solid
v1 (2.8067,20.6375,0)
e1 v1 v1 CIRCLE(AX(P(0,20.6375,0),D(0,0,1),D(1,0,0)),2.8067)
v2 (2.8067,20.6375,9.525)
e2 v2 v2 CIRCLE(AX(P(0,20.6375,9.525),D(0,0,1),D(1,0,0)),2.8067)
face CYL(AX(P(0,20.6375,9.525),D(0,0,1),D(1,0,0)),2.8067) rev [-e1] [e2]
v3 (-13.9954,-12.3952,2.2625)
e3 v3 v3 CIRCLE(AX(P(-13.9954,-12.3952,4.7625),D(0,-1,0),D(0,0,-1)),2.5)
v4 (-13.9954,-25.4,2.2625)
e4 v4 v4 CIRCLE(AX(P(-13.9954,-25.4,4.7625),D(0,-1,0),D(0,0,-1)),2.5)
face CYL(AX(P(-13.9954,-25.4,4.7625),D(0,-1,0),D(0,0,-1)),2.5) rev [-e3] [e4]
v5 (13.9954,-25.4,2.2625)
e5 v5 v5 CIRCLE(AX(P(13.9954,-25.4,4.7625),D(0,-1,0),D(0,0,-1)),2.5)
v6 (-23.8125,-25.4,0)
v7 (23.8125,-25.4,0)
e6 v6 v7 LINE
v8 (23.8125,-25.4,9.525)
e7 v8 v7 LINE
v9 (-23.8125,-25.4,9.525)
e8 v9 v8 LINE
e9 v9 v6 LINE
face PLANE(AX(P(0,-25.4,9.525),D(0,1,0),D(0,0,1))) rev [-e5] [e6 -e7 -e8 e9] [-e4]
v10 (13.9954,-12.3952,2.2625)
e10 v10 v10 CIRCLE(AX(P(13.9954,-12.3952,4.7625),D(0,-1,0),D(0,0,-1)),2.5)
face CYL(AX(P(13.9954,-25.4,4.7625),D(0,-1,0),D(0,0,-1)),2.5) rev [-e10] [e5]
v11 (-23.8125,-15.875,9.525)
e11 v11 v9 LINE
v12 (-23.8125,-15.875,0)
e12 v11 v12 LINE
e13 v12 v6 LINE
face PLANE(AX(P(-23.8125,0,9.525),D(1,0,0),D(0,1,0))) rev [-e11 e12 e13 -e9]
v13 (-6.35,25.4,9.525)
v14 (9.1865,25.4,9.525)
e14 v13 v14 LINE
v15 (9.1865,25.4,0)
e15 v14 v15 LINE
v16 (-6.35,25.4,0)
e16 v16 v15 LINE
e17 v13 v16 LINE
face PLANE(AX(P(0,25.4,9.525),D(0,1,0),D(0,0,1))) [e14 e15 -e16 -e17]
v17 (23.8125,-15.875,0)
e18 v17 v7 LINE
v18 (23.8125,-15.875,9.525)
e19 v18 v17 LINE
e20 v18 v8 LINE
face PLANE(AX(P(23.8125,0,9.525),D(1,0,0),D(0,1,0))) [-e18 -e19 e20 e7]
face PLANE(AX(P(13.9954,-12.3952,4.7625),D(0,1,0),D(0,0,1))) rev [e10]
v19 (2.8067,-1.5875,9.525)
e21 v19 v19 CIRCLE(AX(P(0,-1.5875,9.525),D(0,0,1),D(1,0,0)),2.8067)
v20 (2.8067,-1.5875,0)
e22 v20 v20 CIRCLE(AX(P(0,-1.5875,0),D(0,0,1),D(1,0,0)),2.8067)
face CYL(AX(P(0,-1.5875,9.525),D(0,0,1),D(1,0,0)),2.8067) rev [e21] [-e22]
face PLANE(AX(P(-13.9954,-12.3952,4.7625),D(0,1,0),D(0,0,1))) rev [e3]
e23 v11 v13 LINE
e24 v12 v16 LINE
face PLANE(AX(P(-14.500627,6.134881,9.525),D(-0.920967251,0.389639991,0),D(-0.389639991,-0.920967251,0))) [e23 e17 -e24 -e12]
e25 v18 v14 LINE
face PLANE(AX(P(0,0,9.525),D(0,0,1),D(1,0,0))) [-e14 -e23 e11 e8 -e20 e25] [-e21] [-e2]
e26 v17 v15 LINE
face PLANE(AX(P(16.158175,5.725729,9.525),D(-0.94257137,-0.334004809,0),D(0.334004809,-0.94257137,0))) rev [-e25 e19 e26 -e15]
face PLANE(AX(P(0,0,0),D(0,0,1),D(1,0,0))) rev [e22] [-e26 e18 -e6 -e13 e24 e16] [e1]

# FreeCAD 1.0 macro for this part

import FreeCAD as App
import Part
import Sketcher

V = App.Vector
Q = App.Units.Quantity

doc = App.newDocument("Part")
body = doc.addObject("PartDesign::Body", "Body")

# Sketch on XY plane
sketch1 = doc.addObject("Sketcher::SketchObject", "Sketch")
body.addObject(sketch1)
sketch1.AttachmentSupport = (doc.XY_Plane, [""])
sketch1.MapMode = "FlatFace"
sketch1.addGeometry([
    Part.LineSegment(V(24, -25, 0), V(24, -16, 0)),  # 0
    Part.LineSegment(V(24, -16, 0), V(9, 25, 0)),  # 1
    Part.LineSegment(V(9, 25, 0), V(-6, 25, 0)),  # 2
    Part.LineSegment(V(-6, 25, 0), V(-24, -16, 0)),  # 3
    Part.LineSegment(V(-24, -16, 0), V(-24, -25, 0)),  # 4
    Part.LineSegment(V(-24, -25, 0), V(24, -25, 0)),  # 5
], False)
sketch1.addConstraint([
    Sketcher.Constraint("Coincident", 0, 2, 1, 1),
    Sketcher.Constraint("Coincident", 1, 2, 2, 1),
    Sketcher.Constraint("Coincident", 2, 2, 3, 1),
    Sketcher.Constraint("Coincident", 3, 2, 4, 1),
    Sketcher.Constraint("Coincident", 4, 2, 5, 1),
    Sketcher.Constraint("Coincident", 5, 2, 0, 1),
    Sketcher.Constraint("Vertical", 0),
    Sketcher.Constraint("Horizontal", 2),
    Sketcher.Constraint("Vertical", 4),
    Sketcher.Constraint("Horizontal", 5),
    Sketcher.Constraint("Symmetric", 0, 2, 3, 2, -2),
    Sketcher.Constraint("DistanceY", -1, 1, 1, 2, Q("1 in")),
    Sketcher.Constraint("DistanceY", 4, 2, -1, 1, Q("1 in")),
    Sketcher.Constraint("DistanceX", 5, 1, 5, 2, Q("1.875 in")),
    Sketcher.Constraint("DistanceY", 0, 1, 0, 2, Q("0.375 in")),
    Sketcher.Constraint("DistanceX", 2, 2, -1, 1, Q("0.25 in")),
    Sketcher.Constraint("DistanceX", 2, 2, 2, 1, Q("15.5365 mm")),
])
pad1 = doc.addObject("PartDesign::Pad", "Pad")
body.addObject(pad1)
pad1.Profile = sketch1
pad1.Length = Q("0.375 in")

# Sketch on XY plane
sketch2 = doc.addObject("Sketcher::SketchObject", "Sketch001")
body.addObject(sketch2)
sketch2.AttachmentSupport = (doc.XY_Plane, [""])
sketch2.MapMode = "FlatFace"
sketch2.AttachmentOffset = App.Placement(V(0, 0, 0.375 * 25.4), App.Rotation())
sketch2.addGeometry([
    Part.Circle(V(0, 20.6, 0), V(0, 0, 1), 2.8),
    Part.Circle(V(0, -1.6, 0), V(0, 0, 1), 2.8),
], False)
sketch2.addConstraint([
    Sketcher.Constraint("Equal", 0, 1),
    Sketcher.Constraint("PointOnObject", 0, 3, -2),
    Sketcher.Constraint("PointOnObject", 1, 3, -2),
    Sketcher.Constraint("Diameter", 0, Q("0.221 in")),
    Sketcher.Constraint("DistanceY", -1, 1, 0, 3, Q("0.8125 in")),
    Sketcher.Constraint("DistanceY", 1, 3, -1, 1, Q("0.0625 in")),
])
doc.recompute()
hole = doc.addObject("PartDesign::Hole", "Hole")
body.addObject(hole)
hole.Profile = sketch2
hole.ThreadType = "None"
hole.Diameter = Q("0.221 in")
hole.DepthType = "ThroughAll"

# Sketch on XZ plane
sketch3 = doc.addObject("Sketcher::SketchObject", "Sketch002")
body.addObject(sketch3)
sketch3.AttachmentSupport = (doc.XZ_Plane, [""])
sketch3.MapMode = "FlatFace"
sketch3.AttachmentOffset = App.Placement(V(0, 0, 1 * 25.4), App.Rotation())
sketch3.addGeometry([
    Part.Circle(V(-14, 4.8, 0), V(0, 0, 1), 2.5),
    Part.Circle(V(14, 4.8, 0), V(0, 0, 1), 2.5),
], False)
sketch3.addConstraint([
    Sketcher.Constraint("Equal", 0, 1),
    Sketcher.Constraint("Symmetric", 0, 3, 1, 3, -2),
    Sketcher.Constraint("Diameter", 0, Q("5 mm")),
    Sketcher.Constraint("DistanceX", 0, 3, -1, 1, Q("0.551 in")),
    Sketcher.Constraint("DistanceY", -1, 1, 0, 3, Q("0.1875 in")),
])
doc.recompute()
hole2 = doc.addObject("PartDesign::Hole", "Hole001")
body.addObject(hole2)
hole2.Profile = sketch3
hole2.ThreadType = "None"
hole2.Diameter = 5
hole2.DepthType = "Dimension"
hole2.Depth = Q("0.512 in")
hole2.DrillPoint = "Flat"

doc.recompute()
